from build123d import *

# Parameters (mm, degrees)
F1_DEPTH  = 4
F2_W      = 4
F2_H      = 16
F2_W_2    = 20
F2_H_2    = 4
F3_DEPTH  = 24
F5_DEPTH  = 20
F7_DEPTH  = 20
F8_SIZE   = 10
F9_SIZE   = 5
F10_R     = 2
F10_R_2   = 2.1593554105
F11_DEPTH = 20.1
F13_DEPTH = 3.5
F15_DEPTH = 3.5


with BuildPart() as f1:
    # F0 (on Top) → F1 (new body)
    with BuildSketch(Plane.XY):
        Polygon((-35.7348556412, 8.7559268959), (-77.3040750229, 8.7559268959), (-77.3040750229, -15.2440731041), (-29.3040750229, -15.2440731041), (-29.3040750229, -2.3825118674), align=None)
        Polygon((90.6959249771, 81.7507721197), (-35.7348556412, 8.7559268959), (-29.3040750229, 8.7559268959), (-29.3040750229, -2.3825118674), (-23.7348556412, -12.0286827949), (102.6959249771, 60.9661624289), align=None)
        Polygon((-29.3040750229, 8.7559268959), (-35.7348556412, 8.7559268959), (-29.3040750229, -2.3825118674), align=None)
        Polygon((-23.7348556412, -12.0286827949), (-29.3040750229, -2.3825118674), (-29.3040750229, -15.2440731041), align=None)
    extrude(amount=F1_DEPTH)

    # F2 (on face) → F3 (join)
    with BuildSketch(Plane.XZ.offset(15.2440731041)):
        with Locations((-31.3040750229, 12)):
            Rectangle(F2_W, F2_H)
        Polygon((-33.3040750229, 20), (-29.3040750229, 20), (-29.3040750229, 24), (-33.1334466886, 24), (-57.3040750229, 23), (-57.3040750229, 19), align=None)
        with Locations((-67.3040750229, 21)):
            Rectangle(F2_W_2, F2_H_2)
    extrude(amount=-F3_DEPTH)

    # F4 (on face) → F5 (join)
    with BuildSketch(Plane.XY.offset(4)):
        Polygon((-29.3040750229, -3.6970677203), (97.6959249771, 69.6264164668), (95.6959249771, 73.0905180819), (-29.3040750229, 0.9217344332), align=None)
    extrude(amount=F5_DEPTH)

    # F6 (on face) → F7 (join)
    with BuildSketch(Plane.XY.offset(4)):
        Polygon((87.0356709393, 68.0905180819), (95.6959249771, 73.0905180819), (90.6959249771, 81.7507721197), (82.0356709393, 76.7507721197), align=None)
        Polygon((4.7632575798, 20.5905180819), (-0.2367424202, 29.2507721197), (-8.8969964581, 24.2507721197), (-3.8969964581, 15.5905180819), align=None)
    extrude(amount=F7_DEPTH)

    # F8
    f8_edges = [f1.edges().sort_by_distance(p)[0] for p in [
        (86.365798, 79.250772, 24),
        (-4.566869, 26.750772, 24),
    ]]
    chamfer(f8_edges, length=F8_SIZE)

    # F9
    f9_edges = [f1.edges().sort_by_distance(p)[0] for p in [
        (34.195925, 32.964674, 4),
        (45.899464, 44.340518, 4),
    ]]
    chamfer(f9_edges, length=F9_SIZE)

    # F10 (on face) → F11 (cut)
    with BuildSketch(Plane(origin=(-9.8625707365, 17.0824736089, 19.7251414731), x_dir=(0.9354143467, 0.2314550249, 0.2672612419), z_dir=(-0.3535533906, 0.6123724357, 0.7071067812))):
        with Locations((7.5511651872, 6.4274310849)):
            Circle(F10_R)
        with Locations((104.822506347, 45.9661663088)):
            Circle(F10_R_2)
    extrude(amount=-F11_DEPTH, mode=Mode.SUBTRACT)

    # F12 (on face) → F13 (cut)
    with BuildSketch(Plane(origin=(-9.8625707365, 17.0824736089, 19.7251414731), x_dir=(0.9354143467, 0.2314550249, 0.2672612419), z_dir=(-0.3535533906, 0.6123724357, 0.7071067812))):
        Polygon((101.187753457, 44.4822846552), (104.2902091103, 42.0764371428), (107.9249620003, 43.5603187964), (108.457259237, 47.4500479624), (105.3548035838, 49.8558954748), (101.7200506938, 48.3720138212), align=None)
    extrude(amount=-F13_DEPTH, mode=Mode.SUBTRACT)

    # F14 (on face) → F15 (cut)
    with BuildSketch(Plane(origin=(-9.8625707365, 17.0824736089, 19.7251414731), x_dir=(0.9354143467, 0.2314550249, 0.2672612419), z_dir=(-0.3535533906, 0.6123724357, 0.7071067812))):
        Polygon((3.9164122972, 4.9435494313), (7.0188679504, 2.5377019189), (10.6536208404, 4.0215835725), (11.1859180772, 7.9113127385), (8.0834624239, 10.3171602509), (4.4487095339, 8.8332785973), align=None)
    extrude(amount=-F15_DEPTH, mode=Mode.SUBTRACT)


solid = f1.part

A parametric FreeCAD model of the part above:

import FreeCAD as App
import Part
import Sketcher

V = App.Vector
Q = App.Units.Quantity


def edges_at(feature, points):
    """Names of the edges that pass closest to the given points."""
    edges = feature.Shape.Edges
    near = lambda p: min(range(len(edges)), key=lambda i: edges[i].distToShape(Part.Vertex(*p))[0])
    return sorted({f"Edge{near(p) + 1}" for p in points})

doc = App.newDocument("Part")
body = doc.addObject("PartDesign::Body", "Body")

# Sketch on XY plane
sketch1 = doc.addObject("Sketcher::SketchObject", "Sketch")
body.addObject(sketch1)
sketch1.AttachmentSupport = (doc.XY_Plane, [""])
sketch1.MapMode = "FlatFace"
sketch1.addGeometry(Part.LineSegment(V(-36, 9, 0), V(-77, 9, 0)), False)
sketch1.addGeometry(Part.LineSegment(V(-77, 9, 0), V(-77, -15, 0)), False)
sketch1.addGeometry(Part.LineSegment(V(-77, -15, 0), V(-29, -15, 0)), False)
sketch1.addGeometry(Part.LineSegment(V(-29, -15, 0), V(103, 61, 0)), False)
sketch1.addGeometry(Part.LineSegment(V(103, 61, 0), V(91, 82, 0)), False)
sketch1.addGeometry(Part.LineSegment(V(91, 82, 0), V(-36, 9, 0)), False)
sketch1.addConstraint(Sketcher.Constraint("Coincident", 0, 2, 1, 1))
sketch1.addConstraint(Sketcher.Constraint("Coincident", 1, 2, 2, 1))
sketch1.addConstraint(Sketcher.Constraint("Coincident", 2, 2, 3, 1))
sketch1.addConstraint(Sketcher.Constraint("Coincident", 3, 2, 4, 1))
sketch1.addConstraint(Sketcher.Constraint("Coincident", 4, 2, 5, 1))
sketch1.addConstraint(Sketcher.Constraint("Coincident", 5, 2, 0, 1))
sketch1.addConstraint(Sketcher.Constraint("Horizontal", 0))
sketch1.addConstraint(Sketcher.Constraint("Vertical", 1))
sketch1.addConstraint(Sketcher.Constraint("Horizontal", 2))
sketch1.addConstraint(Sketcher.Constraint("Perpendicular", 3, 4))
sketch1.addConstraint(Sketcher.Constraint("Perpendicular", 4, 5))
sketch1.addConstraint(Sketcher.Constraint("DistanceX", 2, 1, 2, 2, 48.0))
sketch1.addConstraint(Sketcher.Constraint("DistanceY", 1, 2, 1, 1, 24.0))
sketch1.addConstraint(Sketcher.Constraint("Angle", 3, Q("30 deg")))
sketch1.addConstraint(Sketcher.Constraint("Distance", 4, 24.0))
sketch1.addConstraint(Sketcher.Constraint("DistanceX", 2, 2, 3, 2, 132.0))
sketch1.addConstraint(Sketcher.Constraint("DistanceX", 0, 2, -1, 1, 77.304075))
sketch1.addConstraint(Sketcher.Constraint("DistanceY", -1, 1, 0, 2, 8.755927))
pad1 = doc.addObject("PartDesign::Pad", "Pad")
body.addObject(pad1)
pad1.Profile = sketch1
pad1.Length = 4

# Sketch on XZ plane
sketch2 = doc.addObject("Sketcher::SketchObject", "Sketch001")
body.addObject(sketch2)
sketch2.AttachmentSupport = (doc.XZ_Plane, [""])
sketch2.MapMode = "FlatFace"
sketch2.AttachmentOffset = App.Placement(V(0, 0, 15.244073), App.Rotation())
sketch2.addGeometry(Part.LineSegment(V(-33.3, 20, 0), V(-33.3, 4, 0)), False)
sketch2.addGeometry(Part.LineSegment(V(-33.3, 4, 0), V(-29.3, 4, 0)), False)
sketch2.addGeometry(Part.LineSegment(V(-29.3, 4, 0), V(-29.3, 24, 0)), False)
sketch2.addGeometry(Part.LineSegment(V(-29.3, 24, 0), V(-33.1, 24, 0)), False)
sketch2.addGeometry(Part.LineSegment(V(-33.1, 24, 0), V(-57.3, 23, 0)), False)
sketch2.addGeometry(Part.LineSegment(V(-57.3, 23, 0), V(-77.3, 23, 0)), False)
sketch2.addGeometry(Part.LineSegment(V(-77.3, 23, 0), V(-77.3, 19, 0)), False)
sketch2.addGeometry(Part.LineSegment(V(-77.3, 19, 0), V(-57.3, 19, 0)), False)
sketch2.addGeometry(Part.LineSegment(V(-57.3, 19, 0), V(-33.3, 20, 0)), False)
sketch2.addConstraint(Sketcher.Constraint("Coincident", 0, 2, 1, 1))
sketch2.addConstraint(Sketcher.Constraint("Coincident", 1, 2, 2, 1))
sketch2.addConstraint(Sketcher.Constraint("Coincident", 2, 2, 3, 1))
sketch2.addConstraint(Sketcher.Constraint("Coincident", 3, 2, 4, 1))
sketch2.addConstraint(Sketcher.Constraint("Coincident", 4, 2, 5, 1))
sketch2.addConstraint(Sketcher.Constraint("Coincident", 5, 2, 6, 1))
sketch2.addConstraint(Sketcher.Constraint("Coincident", 6, 2, 7, 1))
sketch2.addConstraint(Sketcher.Constraint("Coincident", 7, 2, 8, 1))
sketch2.addConstraint(Sketcher.Constraint("Coincident", 8, 2, 0, 1))
sketch2.addConstraint(Sketcher.Constraint("Vertical", 0))
sketch2.addConstraint(Sketcher.Constraint("Horizontal", 1))
sketch2.addConstraint(Sketcher.Constraint("Vertical", 2))
sketch2.addConstraint(Sketcher.Constraint("Horizontal", 3))
sketch2.addConstraint(Sketcher.Constraint("Horizontal", 5))
sketch2.addConstraint(Sketcher.Constraint("Vertical", 6))
sketch2.addConstraint(Sketcher.Constraint("Horizontal", 7))
sketch2.addConstraint(Sketcher.Constraint("Vertical", 4, 2, 7, 2))
sketch2.addConstraint(Sketcher.Constraint("Equal", 7, 2))
sketch2.addConstraint(Sketcher.Constraint("Equal", 1, 6))
sketch2.addConstraint(Sketcher.Constraint("DistanceX", 1, 1, 1, 2, 4.0))
sketch2.addConstraint(Sketcher.Constraint("DistanceX", 5, 2, 5, 1, 20.0))
sketch2.addConstraint(Sketcher.Constraint("DistanceY", 0, 2, 0, 1, 16.0))
sketch2.addConstraint(Sketcher.Constraint("DistanceY", -1, 1, 0, 2, 4.0))
sketch2.addConstraint(Sketcher.Constraint("DistanceY", -1, 1, 4, 2, 23.0))
sketch2.addConstraint(Sketcher.Constraint("DistanceX", 4, 2, 2, 2, 28.0))
sketch2.addConstraint(Sketcher.Constraint("DistanceX", 3, 2, 3, 1, 3.829372))
sketch2.addConstraint(Sketcher.Constraint("DistanceX", 0, 2, -1, 1, 33.304075))
pad2 = doc.addObject("PartDesign::Pad", "Pad001")
body.addObject(pad2)
pad2.Profile = sketch2
pad2.Length = 24
pad2.Reversed = True

# Sketch on XY plane
sketch3 = doc.addObject("Sketcher::SketchObject", "Sketch002")
body.addObject(sketch3)
sketch3.AttachmentSupport = (doc.XY_Plane, [""])
sketch3.MapMode = "FlatFace"
sketch3.AttachmentOffset = App.Placement(V(0, 0, 4), App.Rotation())
sketch3.addGeometry(Part.LineSegment(V(-29.3, -3.7, 0), V(97.7, 69.6, 0)), False)
sketch3.addGeometry(Part.LineSegment(V(97.7, 69.6, 0), V(95.7, 73.1, 0)), False)
sketch3.addGeometry(Part.LineSegment(V(95.7, 73.1, 0), V(-29.3, 0.9, 0)), False)
sketch3.addGeometry(Part.LineSegment(V(-29.3, 0.9, 0), V(-29.3, -3.7, 0)), False)
sketch3.addConstraint(Sketcher.Constraint("Coincident", 0, 2, 1, 1))
sketch3.addConstraint(Sketcher.Constraint("Coincident", 1, 2, 2, 1))
sketch3.addConstraint(Sketcher.Constraint("Coincident", 2, 2, 3, 1))
sketch3.addConstraint(Sketcher.Constraint("Coincident", 3, 2, 0, 1))
sketch3.addConstraint(Sketcher.Constraint("Vertical", 3))
sketch3.addConstraint(Sketcher.Constraint("Perpendicular", 0, 1))
sketch3.addConstraint(Sketcher.Constraint("Perpendicular", 1, 2))
sketch3.addConstraint(Sketcher.Constraint("Angle", 0, Q("30 deg")))
sketch3.addConstraint(Sketcher.Constraint("Distance", 1, 4.0))
sketch3.addConstraint(Sketcher.Constraint("DistanceX", 2, 2, 1, 2, 125.0))
sketch3.addConstraint(Sketcher.Constraint("DistanceY", -1, 1, 1, 2, 73.090518))
sketch3.addConstraint(Sketcher.Constraint("DistanceX", -1, 1, 0, 2, 97.695925))
pad3 = doc.addObject("PartDesign::Pad", "Pad002")
body.addObject(pad3)
pad3.Profile = sketch3
pad3.Length = 20

# Sketch on XY plane
sketch4 = doc.addObject("Sketcher::SketchObject", "Sketch003")
body.addObject(sketch4)
sketch4.AttachmentSupport = (doc.XY_Plane, [""])
sketch4.MapMode = "FlatFace"
sketch4.AttachmentOffset = App.Placement(V(0, 0, 4), App.Rotation())
sketch4.addGeometry(Part.LineSegment(V(87, 68, 0), V(96, 73, 0)), False)
sketch4.addGeometry(Part.LineSegment(V(96, 73, 0), V(91, 82, 0)), False)
sketch4.addGeometry(Part.LineSegment(V(91, 82, 0), V(82, 77, 0)), False)
sketch4.addGeometry(Part.LineSegment(V(82, 77, 0), V(87, 68, 0)), False)
sketch4.addGeometry(Part.LineSegment(V(5, 21, 0), V(0, 29, 0)), False)
sketch4.addGeometry(Part.LineSegment(V(0, 29, 0), V(-9, 24, 0)), False)
sketch4.addGeometry(Part.LineSegment(V(-9, 24, 0), V(-4, 16, 0)), False)
sketch4.addGeometry(Part.LineSegment(V(-4, 16, 0), V(5, 21, 0)), False)
sketch4.addConstraint(Sketcher.Constraint("Coincident", 0, 2, 1, 1))
sketch4.addConstraint(Sketcher.Constraint("Coincident", 1, 2, 2, 1))
sketch4.addConstraint(Sketcher.Constraint("Coincident", 2, 2, 3, 1))
sketch4.addConstraint(Sketcher.Constraint("Coincident", 3, 2, 0, 1))
sketch4.addConstraint(Sketcher.Constraint("Coincident", 4, 2, 5, 1))
sketch4.addConstraint(Sketcher.Constraint("Coincident", 5, 2, 6, 1))
sketch4.addConstraint(Sketcher.Constraint("Coincident", 6, 2, 7, 1))
sketch4.addConstraint(Sketcher.Constraint("Coincident", 7, 2, 4, 1))
sketch4.addConstraint(Sketcher.Constraint("Perpendicular", 0, 1))
sketch4.addConstraint(Sketcher.Constraint("Perpendicular", 1, 2))
sketch4.addConstraint(Sketcher.Constraint("Perpendicular", 2, 3))
sketch4.addConstraint(Sketcher.Constraint("Parallel", 3, 4))
sketch4.addConstraint(Sketcher.Constraint("Perpendicular", 4, 5))
sketch4.addConstraint(Sketcher.Constraint("Perpendicular", 5, 6))
sketch4.addConstraint(Sketcher.Constraint("Perpendicular", 6, 7))
sketch4.addConstraint(Sketcher.Constraint("Equal", 0, 1))
sketch4.addConstraint(Sketcher.Constraint("Equal", 3, 4))
sketch4.addConstraint(Sketcher.Constraint("Equal", 4, 5))
sketch4.addConstraint(Sketcher.Constraint("Angle", 0, Q("30 deg")))
sketch4.addConstraint(Sketcher.Constraint("Distance", 0, 10.0))
sketch4.addConstraint(Sketcher.Constraint("DistanceY", 4, 2, 2, 2, 47.5))
sketch4.addConstraint(Sketcher.Constraint("DistanceY", -1, 1, 0, 2, 73.090518))
sketch4.addConstraint(Sketcher.Constraint("DistanceX", -1, 1, 2, 2, 82.035671))
sketch4.addConstraint(Sketcher.Constraint("DistanceX", 5, 2, 1, 2, 99.592921))
pad4 = doc.addObject("PartDesign::Pad", "Pad003")
body.addObject(pad4)
pad4.Profile = sketch4
pad4.Length = 20
doc.recompute()

chamfer = doc.addObject("PartDesign::Chamfer", "Chamfer")
body.addObject(chamfer)
chamfer.Base = (pad4, edges_at(pad4, [(86.366, 79.251, 24), (-4.567, 26.751, 24)]))
chamfer.Size = 10
doc.recompute()

chamfer2 = doc.addObject("PartDesign::Chamfer", "Chamfer001")
body.addObject(chamfer2)
chamfer2.Base = (chamfer, edges_at(chamfer, [(34.196, 32.965, 4), (45.899, 44.341, 4)]))
chamfer2.Size = 5

# Sketch on an angled plane
sketch5 = doc.addObject("Sketcher::SketchObject", "Sketch004")
body.addObject(sketch5)
sketch5.Placement = App.Placement(V(-9.862571, 17.082474, 19.725141), App.Rotation(V(0.935414347, 0.231455025, 0.267261242), V(0, 0.755928946, -0.654653671), V(-0.353553391, 0.612372436, 0.707106781), "ZXY"))
sketch5.addGeometry(Part.Circle(V(7.6, 6.4, 0), V(0, 0, 1), 2), False)
sketch5.addGeometry(Part.Circle(V(104.8, 46, 0), V(0, 0, 1), 2.2), False)
sketch5.addConstraint(Sketcher.Constraint("Diameter", 0, 4.0))
sketch5.addConstraint(Sketcher.Constraint("Diameter", 1, 4.318711))
sketch5.addConstraint(Sketcher.Constraint("DistanceY", -1, 1, 0, 3, 6.427431))
sketch5.addConstraint(Sketcher.Constraint("DistanceX", 0, 3, 1, 3, 97.271341))
sketch5.addConstraint(Sketcher.Constraint("DistanceX", -1, 1, 0, 3, 7.551165))
sketch5.addConstraint(Sketcher.Constraint("DistanceY", -1, 1, 1, 3, 45.966166))
pocket1 = doc.addObject("PartDesign::Pocket", "Pocket")
body.addObject(pocket1)
pocket1.Profile = sketch5
pocket1.Length = 20.1

# Sketch on an angled plane
sketch6 = doc.addObject("Sketcher::SketchObject", "Sketch005")
body.addObject(sketch6)
sketch6.Placement = App.Placement(V(-9.862571, 17.082474, 19.725141), App.Rotation(V(0.935414347, 0.231455025, 0.267261242), V(0, 0.755928946, -0.654653671), V(-0.353553391, 0.612372436, 0.707106781), "ZXY"))
sketch6.addGeometry(Part.LineSegment(V(101.2, 44.5, 0), V(104.3, 42.1, 0)), False)
sketch6.addGeometry(Part.LineSegment(V(104.3, 42.1, 0), V(107.9, 43.6, 0)), False)
sketch6.addGeometry(Part.LineSegment(V(107.9, 43.6, 0), V(108.5, 47.5, 0)), False)
sketch6.addGeometry(Part.LineSegment(V(108.5, 47.5, 0), V(105.4, 49.9, 0)), False)
sketch6.addGeometry(Part.LineSegment(V(105.4, 49.9, 0), V(101.7, 48.4, 0)), False)
sketch6.addGeometry(Part.LineSegment(V(101.7, 48.4, 0), V(101.2, 44.5, 0)), False)
sketch6.addConstraint(Sketcher.Constraint("Coincident", 0, 2, 1, 1))
sketch6.addConstraint(Sketcher.Constraint("Coincident", 1, 2, 2, 1))
sketch6.addConstraint(Sketcher.Constraint("Coincident", 2, 2, 3, 1))
sketch6.addConstraint(Sketcher.Constraint("Coincident", 3, 2, 4, 1))
sketch6.addConstraint(Sketcher.Constraint("Coincident", 4, 2, 5, 1))
sketch6.addConstraint(Sketcher.Constraint("Coincident", 5, 2, 0, 1))
sketch6.addConstraint(Sketcher.Constraint("Parallel", 0, 3))
sketch6.addConstraint(Sketcher.Constraint("Parallel", 1, 4))
sketch6.addConstraint(Sketcher.Constraint("Parallel", 2, 5))
sketch6.addConstraint(Sketcher.Constraint("Equal", 0, 1))
sketch6.addConstraint(Sketcher.Constraint("Equal", 1, 2))
sketch6.addConstraint(Sketcher.Constraint("Equal", 2, 3))
sketch6.addConstraint(Sketcher.Constraint("Distance", 0, 3.925982))
sketch6.addConstraint(Sketcher.Constraint("DistanceX", -1, 1, 0, 2, 104.290209))
sketch6.addConstraint(Sketcher.Constraint("DistanceY", -1, 1, 1, 2, 43.560319))
sketch6.addConstraint(Sketcher.Constraint("DistanceX", -1, 1, 2, 2, 108.457259))
sketch6.addConstraint(Sketcher.Constraint("DistanceY", -1, 1, 2, 2, 47.450048))
sketch6.addConstraint(Sketcher.Constraint("DistanceX", -1, 1, 4, 2, 101.720051))
pocket2 = doc.addObject("PartDesign::Pocket", "Pocket001")
body.addObject(pocket2)
pocket2.Profile = sketch6
pocket2.Length = 3.5

# Sketch on an angled plane
sketch7 = doc.addObject("Sketcher::SketchObject", "Sketch006")
body.addObject(sketch7)
sketch7.Placement = App.Placement(V(-9.862571, 17.082474, 19.725141), App.Rotation(V(0.935414347, 0.231455025, 0.267261242), V(0, 0.755928946, -0.654653671), V(-0.353553391, 0.612372436, 0.707106781), "ZXY"))
sketch7.addGeometry(Part.LineSegment(V(3.9, 4.9, 0), V(7, 2.5, 0)), False)
sketch7.addGeometry(Part.LineSegment(V(7, 2.5, 0), V(10.7, 4, 0)), False)
sketch7.addGeometry(Part.LineSegment(V(10.7, 4, 0), V(11.2, 7.9, 0)), False)
sketch7.addGeometry(Part.LineSegment(V(11.2, 7.9, 0), V(8.1, 10.3, 0)), False)
sketch7.addGeometry(Part.LineSegment(V(8.1, 10.3, 0), V(4.4, 8.8, 0)), False)
sketch7.addGeometry(Part.LineSegment(V(4.4, 8.8, 0), V(3.9, 4.9, 0)), False)
sketch7.addConstraint(Sketcher.Constraint("Coincident", 0, 2, 1, 1))
sketch7.addConstraint(Sketcher.Constraint("Coincident", 1, 2, 2, 1))
sketch7.addConstraint(Sketcher.Constraint("Coincident", 2, 2, 3, 1))
sketch7.addConstraint(Sketcher.Constraint("Coincident", 3, 2, 4, 1))
sketch7.addConstraint(Sketcher.Constraint("Coincident", 4, 2, 5, 1))
sketch7.addConstraint(Sketcher.Constraint("Coincident", 5, 2, 0, 1))
sketch7.addConstraint(Sketcher.Constraint("Parallel", 0, 3))
sketch7.addConstraint(Sketcher.Constraint("Parallel", 1, 4))
sketch7.addConstraint(Sketcher.Constraint("Parallel", 2, 5))
sketch7.addConstraint(Sketcher.Constraint("Equal", 0, 1))
sketch7.addConstraint(Sketcher.Constraint("Equal", 1, 2))
sketch7.addConstraint(Sketcher.Constraint("Equal", 2, 3))
sketch7.addConstraint(Sketcher.Constraint("DistanceY", -1, 1, 0, 2, 2.537702))
sketch7.addConstraint(Sketcher.Constraint("Distance", 0, 3.925982))
sketch7.addConstraint(Sketcher.Constraint("DistanceX", -1, 1, 1, 2, 10.653621))
sketch7.addConstraint(Sketcher.Constraint("DistanceX", -1, 1, 2, 2, 11.185918))
sketch7.addConstraint(Sketcher.Constraint("DistanceY", -1, 1, 3, 2, 10.31716))
sketch7.addConstraint(Sketcher.Constraint("DistanceX", -1, 1, 4, 2, 4.44871))
pocket3 = doc.addObject("PartDesign::Pocket", "Pocket002")
body.addObject(pocket3)
pocket3.Profile = sketch7
pocket3.Length = 3.5

doc.recompute()
